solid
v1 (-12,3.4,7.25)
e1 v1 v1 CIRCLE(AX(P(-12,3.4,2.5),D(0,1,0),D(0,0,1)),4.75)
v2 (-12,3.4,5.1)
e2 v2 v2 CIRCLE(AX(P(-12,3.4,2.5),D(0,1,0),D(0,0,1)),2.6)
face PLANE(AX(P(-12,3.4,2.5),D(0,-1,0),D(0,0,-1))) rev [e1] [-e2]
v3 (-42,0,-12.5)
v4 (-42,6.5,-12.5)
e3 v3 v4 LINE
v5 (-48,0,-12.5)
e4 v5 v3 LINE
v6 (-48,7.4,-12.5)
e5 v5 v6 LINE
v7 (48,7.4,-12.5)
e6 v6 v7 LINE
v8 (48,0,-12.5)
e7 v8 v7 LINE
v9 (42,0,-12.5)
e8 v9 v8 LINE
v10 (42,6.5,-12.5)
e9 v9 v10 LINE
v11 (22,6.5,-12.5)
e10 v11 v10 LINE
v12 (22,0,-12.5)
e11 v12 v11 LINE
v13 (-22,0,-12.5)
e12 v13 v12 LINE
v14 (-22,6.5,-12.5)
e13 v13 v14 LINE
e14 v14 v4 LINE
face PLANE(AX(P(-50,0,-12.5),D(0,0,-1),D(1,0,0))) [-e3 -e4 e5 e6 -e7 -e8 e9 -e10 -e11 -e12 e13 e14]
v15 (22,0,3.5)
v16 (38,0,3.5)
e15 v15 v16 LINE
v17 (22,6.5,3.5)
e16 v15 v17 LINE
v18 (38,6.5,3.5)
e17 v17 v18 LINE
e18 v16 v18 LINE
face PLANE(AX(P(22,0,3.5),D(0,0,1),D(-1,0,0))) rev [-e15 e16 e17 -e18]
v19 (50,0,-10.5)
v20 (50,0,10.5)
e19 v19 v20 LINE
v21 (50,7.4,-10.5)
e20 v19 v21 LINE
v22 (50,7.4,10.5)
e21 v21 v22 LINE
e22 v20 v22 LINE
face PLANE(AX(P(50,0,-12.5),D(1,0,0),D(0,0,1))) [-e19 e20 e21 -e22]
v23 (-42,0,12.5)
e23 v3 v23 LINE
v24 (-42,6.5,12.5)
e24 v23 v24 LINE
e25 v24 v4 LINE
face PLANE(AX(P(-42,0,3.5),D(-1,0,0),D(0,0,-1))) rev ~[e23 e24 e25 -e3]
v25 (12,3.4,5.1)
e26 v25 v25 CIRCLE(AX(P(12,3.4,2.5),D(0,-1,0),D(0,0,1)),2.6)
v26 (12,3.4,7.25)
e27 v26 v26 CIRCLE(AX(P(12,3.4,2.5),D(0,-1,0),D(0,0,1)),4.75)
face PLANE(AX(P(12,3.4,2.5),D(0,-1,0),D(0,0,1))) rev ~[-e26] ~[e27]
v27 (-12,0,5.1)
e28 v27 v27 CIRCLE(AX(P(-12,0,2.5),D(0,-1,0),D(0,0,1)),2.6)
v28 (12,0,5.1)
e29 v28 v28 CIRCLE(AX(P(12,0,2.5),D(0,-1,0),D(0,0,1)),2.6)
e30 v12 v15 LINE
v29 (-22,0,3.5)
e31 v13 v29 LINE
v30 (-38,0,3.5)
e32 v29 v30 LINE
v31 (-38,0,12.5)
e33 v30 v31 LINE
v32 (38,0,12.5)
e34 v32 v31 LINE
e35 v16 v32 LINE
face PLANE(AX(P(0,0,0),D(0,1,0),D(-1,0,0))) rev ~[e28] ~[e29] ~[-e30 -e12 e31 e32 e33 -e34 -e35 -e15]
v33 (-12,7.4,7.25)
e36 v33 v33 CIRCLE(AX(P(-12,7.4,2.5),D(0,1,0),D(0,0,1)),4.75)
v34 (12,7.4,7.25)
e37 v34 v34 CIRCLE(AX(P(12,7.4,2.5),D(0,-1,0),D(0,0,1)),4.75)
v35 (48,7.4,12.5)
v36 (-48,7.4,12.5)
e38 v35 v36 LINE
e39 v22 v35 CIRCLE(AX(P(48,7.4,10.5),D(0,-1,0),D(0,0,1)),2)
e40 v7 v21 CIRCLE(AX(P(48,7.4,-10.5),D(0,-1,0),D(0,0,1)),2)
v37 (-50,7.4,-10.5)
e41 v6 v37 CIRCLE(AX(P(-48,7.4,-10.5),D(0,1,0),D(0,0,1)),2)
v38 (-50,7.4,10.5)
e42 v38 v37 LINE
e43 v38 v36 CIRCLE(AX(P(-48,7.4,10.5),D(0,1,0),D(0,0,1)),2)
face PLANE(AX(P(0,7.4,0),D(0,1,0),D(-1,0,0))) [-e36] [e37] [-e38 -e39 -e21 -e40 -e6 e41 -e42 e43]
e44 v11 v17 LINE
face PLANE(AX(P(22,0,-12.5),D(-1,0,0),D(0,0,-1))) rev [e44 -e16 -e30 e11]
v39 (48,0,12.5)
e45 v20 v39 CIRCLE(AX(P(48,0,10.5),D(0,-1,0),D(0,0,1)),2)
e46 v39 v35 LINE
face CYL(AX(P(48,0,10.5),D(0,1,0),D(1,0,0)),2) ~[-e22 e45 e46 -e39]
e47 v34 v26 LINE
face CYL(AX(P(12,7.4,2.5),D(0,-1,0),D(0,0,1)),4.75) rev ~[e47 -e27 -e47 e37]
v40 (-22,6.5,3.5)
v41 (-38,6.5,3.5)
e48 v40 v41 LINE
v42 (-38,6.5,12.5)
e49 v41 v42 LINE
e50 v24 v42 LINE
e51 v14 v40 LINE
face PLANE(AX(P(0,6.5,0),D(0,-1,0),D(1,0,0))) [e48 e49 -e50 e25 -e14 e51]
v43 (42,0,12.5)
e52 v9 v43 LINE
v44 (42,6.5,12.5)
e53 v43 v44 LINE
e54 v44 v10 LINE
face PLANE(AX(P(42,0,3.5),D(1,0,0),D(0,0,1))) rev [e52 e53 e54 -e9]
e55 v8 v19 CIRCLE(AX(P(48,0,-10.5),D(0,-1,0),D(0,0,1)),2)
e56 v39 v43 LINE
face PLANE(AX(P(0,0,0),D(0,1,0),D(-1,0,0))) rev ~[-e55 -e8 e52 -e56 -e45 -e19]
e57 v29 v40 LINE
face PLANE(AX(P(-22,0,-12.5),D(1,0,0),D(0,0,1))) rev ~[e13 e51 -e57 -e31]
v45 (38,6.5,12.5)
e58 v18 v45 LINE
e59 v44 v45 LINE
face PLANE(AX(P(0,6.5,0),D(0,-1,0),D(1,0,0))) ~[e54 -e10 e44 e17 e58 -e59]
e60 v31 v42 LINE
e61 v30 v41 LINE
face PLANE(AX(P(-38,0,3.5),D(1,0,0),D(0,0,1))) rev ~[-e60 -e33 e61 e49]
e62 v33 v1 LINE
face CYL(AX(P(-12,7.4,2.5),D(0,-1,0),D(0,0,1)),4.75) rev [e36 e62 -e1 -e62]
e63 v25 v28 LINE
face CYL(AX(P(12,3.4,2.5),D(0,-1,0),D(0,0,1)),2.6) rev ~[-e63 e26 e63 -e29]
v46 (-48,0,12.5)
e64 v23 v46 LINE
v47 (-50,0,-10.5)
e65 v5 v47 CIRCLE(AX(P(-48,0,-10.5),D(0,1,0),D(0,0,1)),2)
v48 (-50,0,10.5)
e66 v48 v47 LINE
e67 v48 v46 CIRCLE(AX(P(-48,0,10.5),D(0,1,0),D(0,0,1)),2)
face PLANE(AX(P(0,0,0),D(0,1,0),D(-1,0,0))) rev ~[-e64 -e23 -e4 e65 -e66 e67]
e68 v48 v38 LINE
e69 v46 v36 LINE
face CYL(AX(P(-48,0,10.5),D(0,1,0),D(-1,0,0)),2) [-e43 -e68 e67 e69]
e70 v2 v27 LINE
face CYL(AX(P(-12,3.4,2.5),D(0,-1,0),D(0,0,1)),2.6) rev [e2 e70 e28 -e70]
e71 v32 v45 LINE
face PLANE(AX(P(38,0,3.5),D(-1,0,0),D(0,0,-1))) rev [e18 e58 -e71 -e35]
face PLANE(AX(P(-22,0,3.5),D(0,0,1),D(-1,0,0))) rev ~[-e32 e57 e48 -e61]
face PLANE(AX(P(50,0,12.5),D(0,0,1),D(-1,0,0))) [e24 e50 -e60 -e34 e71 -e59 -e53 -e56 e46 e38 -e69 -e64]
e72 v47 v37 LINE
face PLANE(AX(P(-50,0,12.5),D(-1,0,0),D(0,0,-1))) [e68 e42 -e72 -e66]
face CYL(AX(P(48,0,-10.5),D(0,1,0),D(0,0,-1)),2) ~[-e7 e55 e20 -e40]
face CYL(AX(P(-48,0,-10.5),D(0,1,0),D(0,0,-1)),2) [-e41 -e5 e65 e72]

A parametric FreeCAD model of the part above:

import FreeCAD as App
import Part
import Sketcher

V = App.Vector
Q = App.Units.Quantity


def edges_at(feature, points):
    """Names of the edges that pass closest to the given points."""
    edges = feature.Shape.Edges
    near = lambda p: min(range(len(edges)), key=lambda i: edges[i].distToShape(Part.Vertex(*p))[0])
    return sorted({f"Edge{near(p) + 1}" for p in points})


def add_polygon(sketch, points):
    """Adds a closed chain of lines whose ends are joined by coincident constraints."""
    first, n = sketch.GeometryCount, len(points)
    for a, b in zip(points, points[1:] + points[:1]):
        sketch.addGeometry(Part.LineSegment(App.Vector(*a, 0), App.Vector(*b, 0)), False)
    for i in range(n):
        sketch.addConstraint(Sketcher.Constraint("Coincident", first + i, 2, first + (i + 1) % n, 1))

doc = App.newDocument("Part")
body = doc.addObject("PartDesign::Body", "Body")

# Sketch on XZ plane
sketch1 = doc.addObject("Sketcher::SketchObject", "Sketch")
body.addObject(sketch1)
sketch1.AttachmentSupport = (doc.XZ_Plane, [""])
sketch1.MapMode = "FlatFace"
add_polygon(sketch1, [(50, -12), (-50, -12), (-50, 12), (50, 12)])  # lines 0-3
sketch1.addConstraint(Sketcher.Constraint("Horizontal", 0))
sketch1.addConstraint(Sketcher.Constraint("Vertical", 1))
sketch1.addConstraint(Sketcher.Constraint("Horizontal", 2))
sketch1.addConstraint(Sketcher.Constraint("Vertical", 3))
sketch1.addConstraint(Sketcher.Constraint("Symmetric", 0, 2, 2, 2, -1, 1))
sketch1.addConstraint(Sketcher.Constraint("DistanceX", 0, 2, 0, 1, Q("100 mm")))
sketch1.addConstraint(Sketcher.Constraint("DistanceY", 1, 1, 1, 2, Q("25 mm")))
pad1 = doc.addObject("PartDesign::Pad", "Pad")
body.addObject(pad1)
pad1.Profile = sketch1
pad1.Length = 7.4
pad1.Reversed = True

# Sketch on XZ plane
sketch2 = doc.addObject("Sketcher::SketchObject", "Sketch001")
body.addObject(sketch2)
sketch2.AttachmentSupport = (doc.XZ_Plane, [""])
sketch2.MapMode = "FlatFace"
sketch2.AttachmentOffset = App.Placement(V(0, 0, -7.4), App.Rotation())
sketch2.addGeometry(Part.Circle(V(12, 2.5, 0), V(0, 0, 1), 2.6), False)
sketch2.addConstraint(Sketcher.Constraint("Diameter", 0, Q("5.2 mm")))
sketch2.addConstraint(Sketcher.Constraint("DistanceX", -1, 1, 0, 3, Q("12 mm")))
sketch2.addConstraint(Sketcher.Constraint("DistanceY", -1, 1, 0, 3, Q("2.5 mm")))
doc.recompute()
hole = doc.addObject("PartDesign::Hole", "Hole")
body.addObject(hole)
hole.Profile = sketch2
hole.ThreadType = "None"
hole.Diameter = 5.2
hole.DepthType = "ThroughAll"
hole.HoleCutType = "Counterbore"
hole.HoleCutDiameter = 9.5
hole.HoleCutDepth = 4
hole.Reversed = True
doc.recompute()

fillet = doc.addObject("PartDesign::Fillet", "Fillet")
body.addObject(fillet)
fillet.Base = (hole, edges_at(hole, [
    (50, 3.7, 12.5),
    (50, 3.7, -12.5),
    (-50, 3.7, 12.5),
    (-50, 3.7, -12.5),
]))
fillet.Radius = 2

# Sketch on XZ plane
sketch3 = doc.addObject("Sketcher::SketchObject", "Sketch002")
body.addObject(sketch3)
sketch3.AttachmentSupport = (doc.XZ_Plane, [""])
sketch3.MapMode = "FlatFace"
add_polygon(sketch3, [(-42, -12.5), (-22, -12.5), (-22, 3.5), (-38, 3.5), (-38, 12.5), (-42, 12.5)])  # lines 0-5
sketch3.addConstraint(Sketcher.Constraint("Horizontal", 0))
sketch3.addConstraint(Sketcher.Constraint("Vertical", 1))
sketch3.addConstraint(Sketcher.Constraint("Horizontal", 2))
sketch3.addConstraint(Sketcher.Constraint("Vertical", 3))
sketch3.addConstraint(Sketcher.Constraint("Horizontal", 4))
sketch3.addConstraint(Sketcher.Constraint("Vertical", 5))
sketch3.addConstraint(Sketcher.Constraint("Equal", 2, 1))
sketch3.addConstraint(Sketcher.Constraint("DistanceX", 0, 1, 0, 2, Q("20 mm")))
sketch3.addConstraint(Sketcher.Constraint("DistanceX", 2, 2, 2, 1, Q("16 mm")))
sketch3.addConstraint(Sketcher.Constraint("DistanceY", 3, 1, 3, 2, Q("9 mm")))
sketch3.addConstraint(Sketcher.Constraint("DistanceX", 0, 2, -1, 1, Q("22 mm")))
sketch3.addConstraint(Sketcher.Constraint("DistanceY", 0, 2, -1, 1, Q("12.5 mm")))
pocket1 = doc.addObject("PartDesign::Pocket", "Pocket")
body.addObject(pocket1)
pocket1.Profile = sketch3
pocket1.Length = 6.5
doc.recompute()

mirrored = doc.addObject("PartDesign::Mirrored", "Mirrored")
body.addObject(mirrored)
mirrored.Originals = [hole, pocket1]
mirrored.MirrorPlane = (doc.YZ_Plane, [""])
body.Tip = mirrored

doc.recompute()
